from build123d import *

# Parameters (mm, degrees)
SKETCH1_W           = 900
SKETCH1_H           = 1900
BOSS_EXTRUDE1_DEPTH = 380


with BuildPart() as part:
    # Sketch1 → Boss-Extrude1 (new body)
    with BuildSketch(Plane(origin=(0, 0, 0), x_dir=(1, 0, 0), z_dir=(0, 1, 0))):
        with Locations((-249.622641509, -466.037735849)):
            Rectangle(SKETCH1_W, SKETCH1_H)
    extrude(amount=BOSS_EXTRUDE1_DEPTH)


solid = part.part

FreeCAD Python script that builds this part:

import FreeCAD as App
import Part
import Sketcher
Q = App.Units.Quantity


def add_polygon(sketch, points):
    """Adds a closed chain of lines whose ends are joined by coincident constraints."""
    first, n = sketch.GeometryCount, len(points)
    for a, b in zip(points, points[1:] + points[:1]):
        sketch.addGeometry(Part.LineSegment(App.Vector(*a, 0), App.Vector(*b, 0)), False)
    for i in range(n):
        sketch.addConstraint(Sketcher.Constraint("Coincident", first + i, 2, first + (i + 1) % n, 1))

doc = App.newDocument("Part")
params = doc.addObject("Spreadsheet::Sheet", "Params")
for row, (alias, value) in enumerate([
    ("sketch1_width", "900 mm"),
    ("sketch1_height", "1900 mm"),
    ("pad1_length", "380 mm"),
], start=1):
    params.set(f"A{row}", alias)
    params.set(f"B{row}", "=" + value)
    params.setAlias(f"B{row}", alias)

body = doc.addObject("PartDesign::Body", "Body")

# Sketch on XZ plane
sketch1 = doc.addObject("Sketcher::SketchObject", "Sketch")
body.addObject(sketch1)
sketch1.AttachmentSupport = (doc.XZ_Plane, [""])
sketch1.MapMode = "FlatFace"
add_polygon(sketch1, [(-699.622642, -483.962264), (-699.622642, 1416.037736), (200.377358, 1416.037736), (200.377358, -483.962264)])  # lines 0-3
sketch1.addConstraint(Sketcher.Constraint("Vertical", 0))
sketch1.addConstraint(Sketcher.Constraint("Horizontal", 1))
sketch1.addConstraint(Sketcher.Constraint("Vertical", 2))
sketch1.addConstraint(Sketcher.Constraint("Horizontal", 3))
sketch1.addConstraint(Sketcher.Constraint("DistanceX", 1, 1, 1, 2, Q("900 mm")))
sketch1.addConstraint(Sketcher.Constraint("DistanceY", 0, 1, 0, 2, Q("1900 mm")))
sketch1.addConstraint(Sketcher.Constraint("DistanceX", 0, 2, -1, 1, Q("699.622642 mm")))
sketch1.addConstraint(Sketcher.Constraint("DistanceY", -1, 1, 0, 2, Q("1416.037736 mm")))
sketch1.setExpression("Constraints[8]", "Params.sketch1_width")
sketch1.setExpression("Constraints[9]", "Params.sketch1_height")
pad1 = doc.addObject("PartDesign::Pad", "Pad")
body.addObject(pad1)
pad1.Profile = sketch1
pad1.setExpression("Length", "Params.pad1_length")
pad1.Reversed = True

doc.recompute()
